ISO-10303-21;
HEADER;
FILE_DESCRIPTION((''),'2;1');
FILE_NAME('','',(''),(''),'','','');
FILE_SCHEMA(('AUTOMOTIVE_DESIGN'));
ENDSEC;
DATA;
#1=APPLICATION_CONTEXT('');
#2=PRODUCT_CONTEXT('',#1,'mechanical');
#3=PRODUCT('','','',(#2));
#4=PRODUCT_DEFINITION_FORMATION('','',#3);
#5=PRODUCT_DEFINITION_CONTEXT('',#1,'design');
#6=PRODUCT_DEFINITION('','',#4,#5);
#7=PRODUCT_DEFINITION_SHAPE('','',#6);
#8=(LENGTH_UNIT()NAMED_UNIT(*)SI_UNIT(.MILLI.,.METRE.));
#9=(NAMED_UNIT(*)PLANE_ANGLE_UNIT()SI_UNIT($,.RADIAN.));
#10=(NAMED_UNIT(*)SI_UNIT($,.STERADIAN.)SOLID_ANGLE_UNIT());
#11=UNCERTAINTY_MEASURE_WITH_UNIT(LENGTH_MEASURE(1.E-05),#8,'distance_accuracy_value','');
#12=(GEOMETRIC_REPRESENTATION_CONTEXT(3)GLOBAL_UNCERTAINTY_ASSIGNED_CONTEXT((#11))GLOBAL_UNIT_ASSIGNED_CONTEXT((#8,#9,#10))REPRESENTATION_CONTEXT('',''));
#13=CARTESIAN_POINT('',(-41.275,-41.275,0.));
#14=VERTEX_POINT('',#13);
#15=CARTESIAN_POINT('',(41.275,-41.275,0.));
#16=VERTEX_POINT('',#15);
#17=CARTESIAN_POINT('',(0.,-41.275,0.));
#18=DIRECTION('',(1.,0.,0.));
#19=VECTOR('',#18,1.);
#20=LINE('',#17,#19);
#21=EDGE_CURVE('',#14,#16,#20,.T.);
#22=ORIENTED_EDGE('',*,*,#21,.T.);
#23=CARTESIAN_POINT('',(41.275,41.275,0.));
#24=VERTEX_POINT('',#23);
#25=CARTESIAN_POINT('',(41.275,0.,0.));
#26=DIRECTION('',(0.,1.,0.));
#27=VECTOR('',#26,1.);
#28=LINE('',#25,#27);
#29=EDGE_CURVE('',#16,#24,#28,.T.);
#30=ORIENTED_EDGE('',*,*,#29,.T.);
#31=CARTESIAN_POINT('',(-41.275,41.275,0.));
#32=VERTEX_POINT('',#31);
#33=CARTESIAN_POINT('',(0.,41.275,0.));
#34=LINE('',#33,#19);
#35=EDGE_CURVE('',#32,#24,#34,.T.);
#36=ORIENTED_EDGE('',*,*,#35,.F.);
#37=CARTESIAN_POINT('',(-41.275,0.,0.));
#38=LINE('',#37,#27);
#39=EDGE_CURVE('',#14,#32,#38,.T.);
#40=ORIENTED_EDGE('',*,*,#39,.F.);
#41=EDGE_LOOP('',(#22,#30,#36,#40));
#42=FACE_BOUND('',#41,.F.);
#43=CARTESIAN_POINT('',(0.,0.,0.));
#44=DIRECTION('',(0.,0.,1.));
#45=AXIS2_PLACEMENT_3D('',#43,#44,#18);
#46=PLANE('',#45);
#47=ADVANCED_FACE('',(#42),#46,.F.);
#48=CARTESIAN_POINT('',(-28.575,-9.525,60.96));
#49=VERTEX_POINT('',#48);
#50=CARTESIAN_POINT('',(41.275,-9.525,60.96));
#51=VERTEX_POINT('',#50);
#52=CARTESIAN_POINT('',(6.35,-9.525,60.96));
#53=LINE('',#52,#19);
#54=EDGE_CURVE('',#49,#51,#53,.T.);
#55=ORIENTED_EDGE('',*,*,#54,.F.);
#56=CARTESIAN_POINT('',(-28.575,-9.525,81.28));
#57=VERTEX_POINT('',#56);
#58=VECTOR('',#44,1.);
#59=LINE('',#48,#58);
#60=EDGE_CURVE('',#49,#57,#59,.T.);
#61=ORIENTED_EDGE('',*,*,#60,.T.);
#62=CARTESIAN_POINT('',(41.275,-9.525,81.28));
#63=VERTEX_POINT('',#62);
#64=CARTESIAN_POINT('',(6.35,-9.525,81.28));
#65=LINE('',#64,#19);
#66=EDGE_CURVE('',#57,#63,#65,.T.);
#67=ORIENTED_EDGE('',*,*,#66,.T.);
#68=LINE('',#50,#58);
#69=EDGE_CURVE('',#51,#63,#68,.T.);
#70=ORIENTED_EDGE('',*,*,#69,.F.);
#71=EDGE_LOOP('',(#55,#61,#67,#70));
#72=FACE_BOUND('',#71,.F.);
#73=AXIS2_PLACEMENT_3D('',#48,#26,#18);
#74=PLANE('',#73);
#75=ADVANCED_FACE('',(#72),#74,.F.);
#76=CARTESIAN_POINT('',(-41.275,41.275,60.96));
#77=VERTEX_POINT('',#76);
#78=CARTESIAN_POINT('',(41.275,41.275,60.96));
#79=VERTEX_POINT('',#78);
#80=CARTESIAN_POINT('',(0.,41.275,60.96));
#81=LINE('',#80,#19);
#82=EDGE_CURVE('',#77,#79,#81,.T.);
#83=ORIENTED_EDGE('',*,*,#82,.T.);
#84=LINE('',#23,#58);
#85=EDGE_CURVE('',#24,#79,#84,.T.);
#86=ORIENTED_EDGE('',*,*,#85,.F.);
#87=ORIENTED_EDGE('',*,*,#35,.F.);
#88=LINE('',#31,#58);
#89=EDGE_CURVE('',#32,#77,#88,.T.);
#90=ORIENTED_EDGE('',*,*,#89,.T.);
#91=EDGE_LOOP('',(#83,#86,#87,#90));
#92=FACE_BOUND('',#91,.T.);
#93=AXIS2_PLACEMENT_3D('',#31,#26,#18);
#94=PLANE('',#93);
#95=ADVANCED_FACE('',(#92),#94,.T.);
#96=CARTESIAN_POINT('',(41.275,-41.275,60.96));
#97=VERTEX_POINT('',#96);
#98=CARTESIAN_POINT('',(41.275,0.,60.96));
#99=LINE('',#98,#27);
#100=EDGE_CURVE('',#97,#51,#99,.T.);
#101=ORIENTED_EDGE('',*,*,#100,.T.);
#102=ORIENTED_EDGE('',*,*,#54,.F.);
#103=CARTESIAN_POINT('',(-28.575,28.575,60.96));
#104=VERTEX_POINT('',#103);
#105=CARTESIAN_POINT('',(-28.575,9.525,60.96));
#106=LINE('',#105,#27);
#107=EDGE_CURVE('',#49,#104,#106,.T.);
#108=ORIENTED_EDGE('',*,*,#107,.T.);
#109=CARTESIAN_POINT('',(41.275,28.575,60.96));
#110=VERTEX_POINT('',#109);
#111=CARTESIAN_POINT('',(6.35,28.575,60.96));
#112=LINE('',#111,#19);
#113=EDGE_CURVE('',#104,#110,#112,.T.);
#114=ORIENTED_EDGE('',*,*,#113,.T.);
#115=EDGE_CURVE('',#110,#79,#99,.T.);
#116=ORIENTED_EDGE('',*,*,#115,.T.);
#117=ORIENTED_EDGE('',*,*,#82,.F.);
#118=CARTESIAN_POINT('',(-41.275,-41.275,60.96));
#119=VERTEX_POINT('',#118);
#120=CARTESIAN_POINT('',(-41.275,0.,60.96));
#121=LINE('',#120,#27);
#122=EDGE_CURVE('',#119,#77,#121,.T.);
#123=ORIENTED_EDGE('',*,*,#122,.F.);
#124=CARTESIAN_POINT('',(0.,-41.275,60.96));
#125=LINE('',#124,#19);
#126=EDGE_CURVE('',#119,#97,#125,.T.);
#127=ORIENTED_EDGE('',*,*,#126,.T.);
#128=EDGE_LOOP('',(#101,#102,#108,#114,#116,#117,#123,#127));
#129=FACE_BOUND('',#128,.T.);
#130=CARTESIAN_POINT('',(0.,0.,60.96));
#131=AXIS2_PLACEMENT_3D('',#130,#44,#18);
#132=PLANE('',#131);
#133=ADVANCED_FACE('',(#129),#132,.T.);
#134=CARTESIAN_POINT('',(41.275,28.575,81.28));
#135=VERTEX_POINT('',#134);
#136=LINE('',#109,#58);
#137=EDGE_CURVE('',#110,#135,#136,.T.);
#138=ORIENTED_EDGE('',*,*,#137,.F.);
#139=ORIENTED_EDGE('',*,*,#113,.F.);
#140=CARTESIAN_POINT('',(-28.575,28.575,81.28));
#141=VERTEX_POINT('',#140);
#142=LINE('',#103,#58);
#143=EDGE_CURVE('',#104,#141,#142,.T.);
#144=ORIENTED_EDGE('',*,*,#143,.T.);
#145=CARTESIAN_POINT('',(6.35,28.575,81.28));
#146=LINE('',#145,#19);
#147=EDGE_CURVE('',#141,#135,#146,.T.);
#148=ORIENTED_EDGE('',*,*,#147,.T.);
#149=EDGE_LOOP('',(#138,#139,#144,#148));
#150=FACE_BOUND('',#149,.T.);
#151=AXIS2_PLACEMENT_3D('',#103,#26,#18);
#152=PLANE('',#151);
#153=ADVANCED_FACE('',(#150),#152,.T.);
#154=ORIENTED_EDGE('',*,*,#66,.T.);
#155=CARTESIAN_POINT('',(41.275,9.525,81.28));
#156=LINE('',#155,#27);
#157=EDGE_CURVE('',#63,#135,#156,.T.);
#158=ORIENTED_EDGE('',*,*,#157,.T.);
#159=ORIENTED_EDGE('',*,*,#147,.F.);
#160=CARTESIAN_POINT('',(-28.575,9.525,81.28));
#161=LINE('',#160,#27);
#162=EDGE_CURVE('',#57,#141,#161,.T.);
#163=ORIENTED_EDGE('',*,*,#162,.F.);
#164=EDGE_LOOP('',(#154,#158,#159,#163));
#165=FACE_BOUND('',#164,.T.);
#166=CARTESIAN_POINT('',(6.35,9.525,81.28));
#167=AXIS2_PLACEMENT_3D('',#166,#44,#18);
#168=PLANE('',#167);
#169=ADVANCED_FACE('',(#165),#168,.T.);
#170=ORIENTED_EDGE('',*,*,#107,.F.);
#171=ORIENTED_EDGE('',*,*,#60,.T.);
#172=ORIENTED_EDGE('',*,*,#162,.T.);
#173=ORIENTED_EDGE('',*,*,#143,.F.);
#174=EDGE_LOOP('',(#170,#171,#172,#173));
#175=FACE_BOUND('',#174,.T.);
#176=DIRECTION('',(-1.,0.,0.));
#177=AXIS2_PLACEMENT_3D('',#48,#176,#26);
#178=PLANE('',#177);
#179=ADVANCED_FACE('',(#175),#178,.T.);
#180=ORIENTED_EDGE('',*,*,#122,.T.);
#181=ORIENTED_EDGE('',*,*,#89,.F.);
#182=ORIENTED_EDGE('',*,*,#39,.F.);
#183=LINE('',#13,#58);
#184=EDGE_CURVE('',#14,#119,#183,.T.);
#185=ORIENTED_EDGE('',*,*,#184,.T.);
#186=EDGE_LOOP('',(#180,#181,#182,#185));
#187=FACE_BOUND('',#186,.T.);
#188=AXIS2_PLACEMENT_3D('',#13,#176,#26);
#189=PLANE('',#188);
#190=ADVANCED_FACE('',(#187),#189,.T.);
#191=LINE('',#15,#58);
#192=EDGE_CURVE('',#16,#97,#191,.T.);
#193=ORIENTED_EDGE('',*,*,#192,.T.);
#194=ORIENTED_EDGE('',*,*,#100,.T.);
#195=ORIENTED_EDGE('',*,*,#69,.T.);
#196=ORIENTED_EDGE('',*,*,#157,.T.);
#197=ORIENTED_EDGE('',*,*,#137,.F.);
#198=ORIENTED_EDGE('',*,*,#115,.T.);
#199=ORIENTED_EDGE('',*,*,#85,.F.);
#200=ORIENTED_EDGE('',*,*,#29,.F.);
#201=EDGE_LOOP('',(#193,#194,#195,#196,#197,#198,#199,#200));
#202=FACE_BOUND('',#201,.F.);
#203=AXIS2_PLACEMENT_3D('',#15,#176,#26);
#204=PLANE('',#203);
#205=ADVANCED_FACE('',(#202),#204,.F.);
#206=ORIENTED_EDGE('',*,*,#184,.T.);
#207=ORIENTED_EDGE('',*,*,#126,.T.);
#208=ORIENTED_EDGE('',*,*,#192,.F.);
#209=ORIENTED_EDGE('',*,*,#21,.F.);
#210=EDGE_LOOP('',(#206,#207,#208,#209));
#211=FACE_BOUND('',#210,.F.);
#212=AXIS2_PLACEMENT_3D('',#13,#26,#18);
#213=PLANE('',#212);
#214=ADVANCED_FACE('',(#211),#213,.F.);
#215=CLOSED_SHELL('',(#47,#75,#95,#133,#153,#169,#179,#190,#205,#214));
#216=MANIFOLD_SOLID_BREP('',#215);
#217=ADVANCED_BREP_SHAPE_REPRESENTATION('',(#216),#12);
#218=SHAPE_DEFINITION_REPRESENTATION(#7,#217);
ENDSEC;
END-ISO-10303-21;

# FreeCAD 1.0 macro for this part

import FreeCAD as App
import Part
import Sketcher

V = App.Vector
Q = App.Units.Quantity

doc = App.newDocument("Part")
body = doc.addObject("PartDesign::Body", "Body")

# Sketch on XY plane
sketch1 = doc.addObject("Sketcher::SketchObject", "Sketch")
body.addObject(sketch1)
sketch1.AttachmentSupport = (doc.XY_Plane, [""])
sketch1.MapMode = "FlatFace"
sketch1.addGeometry([
    Part.LineSegment(V(-41, 41, 0), V(-41, -41, 0)),
    Part.LineSegment(V(-41, -41, 0), V(41, -41, 0)),
    Part.LineSegment(V(41, -41, 0), V(41, 41, 0)),
    Part.LineSegment(V(41, 41, 0), V(-41, 41, 0)),
], False)
sketch1.addConstraint([
    Sketcher.Constraint("Coincident", 0, 2, 1, 1),
    Sketcher.Constraint("Coincident", 1, 2, 2, 1),
    Sketcher.Constraint("Coincident", 2, 2, 3, 1),
    Sketcher.Constraint("Coincident", 3, 2, 0, 1),
    Sketcher.Constraint("Vertical", 0),
    Sketcher.Constraint("Horizontal", 1),
    Sketcher.Constraint("Vertical", 2),
    Sketcher.Constraint("Horizontal", 3),
    Sketcher.Constraint("Symmetric", 0, 2, 2, 2, -1, 1),
    Sketcher.Constraint("Equal", 3, 0),
    Sketcher.Constraint("DistanceX", 1, 1, 1, 2, Q("3.25 in")),
])
pad1 = doc.addObject("PartDesign::Pad", "Pad")
body.addObject(pad1)
pad1.Profile = sketch1
pad1.Length = Q("2.4 in")

# Sketch on XY plane
sketch2 = doc.addObject("Sketcher::SketchObject", "Sketch001")
body.addObject(sketch2)
sketch2.AttachmentSupport = (doc.XY_Plane, [""])
sketch2.MapMode = "FlatFace"
sketch2.AttachmentOffset = App.Placement(V(0, 0, 2.4 * 25.4), App.Rotation())
sketch2.addGeometry([
    Part.LineSegment(V(-29, 29, 0), V(-29, -10, 0)),
    Part.LineSegment(V(-29, -10, 0), V(41, -10, 0)),
    Part.LineSegment(V(41, -10, 0), V(41, 29, 0)),
    Part.LineSegment(V(41, 29, 0), V(-29, 29, 0)),
], False)
sketch2.addConstraint([
    Sketcher.Constraint("Coincident", 0, 2, 1, 1),
    Sketcher.Constraint("Coincident", 1, 2, 2, 1),
    Sketcher.Constraint("Coincident", 2, 2, 3, 1),
    Sketcher.Constraint("Coincident", 3, 2, 0, 1),
    Sketcher.Constraint("Vertical", 0),
    Sketcher.Constraint("Horizontal", 1),
    Sketcher.Constraint("Vertical", 2),
    Sketcher.Constraint("Horizontal", 3),
    Sketcher.Constraint("DistanceY", 0, 2, 0, 1, Q("1.5 in")),
    Sketcher.Constraint("DistanceX", 1, 1, 1, 2, Q("2.75 in")),
    Sketcher.Constraint("DistanceX", 0, 2, -1, 1, Q("1.125 in")),
    Sketcher.Constraint("DistanceY", 0, 2, -1, 1, Q("0.375 in")),
])
pad2 = doc.addObject("PartDesign::Pad", "Pad001")
body.addObject(pad2)
pad2.Profile = sketch2
pad2.Length = Q("0.8 in")

doc.recompute()
